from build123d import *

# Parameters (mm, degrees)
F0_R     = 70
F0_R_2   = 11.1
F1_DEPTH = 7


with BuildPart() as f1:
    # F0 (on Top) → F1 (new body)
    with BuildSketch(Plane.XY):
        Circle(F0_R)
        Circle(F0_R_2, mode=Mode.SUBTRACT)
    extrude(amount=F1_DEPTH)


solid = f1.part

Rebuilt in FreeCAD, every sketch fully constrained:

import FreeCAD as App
import Part
import Sketcher

V = App.Vector
Q = App.Units.Quantity

doc = App.newDocument("Part")
body = doc.addObject("PartDesign::Body", "Body")

sketch1 = body.newObject("Sketcher::SketchObject", "Sketch")
sketch1.AttachmentSupport = (doc.getObject("XY_Plane"), [""])
sketch1.MapMode = "FlatFace"
sketch1.addGeometry([
    Part.Circle(V(0, 0, 0), V(0, 0, 1), 70),
    Part.Circle(V(0, 0, 0), V(0, 0, 1), 11),
], False)
sketch1.addConstraint([
    Sketcher.Constraint("Coincident", 0, 3, -1, 1),
    Sketcher.Constraint("Coincident", 1, 3, -1, 1),
    Sketcher.Constraint("Diameter", 0, Q("140 mm")),
    Sketcher.Constraint("Diameter", 1, Q("22.2 mm")),
])
pad1 = body.newObject("PartDesign::Pad", "Pad")
pad1.Profile = sketch1
pad1.Length = 7

doc.recompute()
